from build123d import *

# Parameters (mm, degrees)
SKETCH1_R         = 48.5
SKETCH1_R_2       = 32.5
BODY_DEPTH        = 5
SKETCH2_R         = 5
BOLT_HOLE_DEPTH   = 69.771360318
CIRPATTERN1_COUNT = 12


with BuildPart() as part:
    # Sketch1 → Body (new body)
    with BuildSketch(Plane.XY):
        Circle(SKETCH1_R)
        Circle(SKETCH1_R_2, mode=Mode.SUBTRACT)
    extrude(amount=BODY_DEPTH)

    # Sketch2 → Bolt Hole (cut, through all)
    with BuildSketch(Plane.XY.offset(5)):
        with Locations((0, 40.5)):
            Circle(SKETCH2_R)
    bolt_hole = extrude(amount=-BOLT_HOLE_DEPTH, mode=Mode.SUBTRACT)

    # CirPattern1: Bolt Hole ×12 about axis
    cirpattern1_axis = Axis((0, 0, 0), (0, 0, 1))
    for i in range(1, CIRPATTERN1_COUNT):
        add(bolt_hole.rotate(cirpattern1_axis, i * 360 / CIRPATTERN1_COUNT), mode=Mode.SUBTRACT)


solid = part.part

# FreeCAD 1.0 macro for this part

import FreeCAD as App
import Part
import Sketcher

doc = App.newDocument("Part")
params = doc.addObject("Spreadsheet::Sheet", "Params")
for row, (alias, value) in enumerate([
    ("sketch1_diameter", "97 mm"),
    ("sketch1_diameter2", "65 mm"),
    ("pad1_length", "5 mm"),
    ("sketch2_diameter", "10 mm"),
], start=1):
    params.set(f"A{row}", alias)
    params.set(f"B{row}", "=" + value)
    params.setAlias(f"B{row}", alias)

body = doc.addObject("PartDesign::Body", "Body")

# Sketch on XY plane
sketch1 = body.newObject("Sketcher::SketchObject", "Sketch")
sketch1.AttachmentSupport = (doc.getObject("XY_Plane"), [""])
sketch1.MapMode = "FlatFace"
sketch1.addGeometry([
    Part.Circle(App.Vector(0, 0, 0), App.Vector(0, 0, 1), 48),
    Part.Circle(App.Vector(0, 0, 0), App.Vector(0, 0, 1), 32),
], False)
sketch1.addConstraint([
    Sketcher.Constraint("Coincident", 0, 3, -1, 1),
    Sketcher.Constraint("Coincident", 1, 3, -1, 1),
    Sketcher.Constraint("Diameter", 0, 97.0),
    Sketcher.Constraint("Diameter", 1, 65.0),
])
sketch1.setExpression("Constraints[2]", "Params.sketch1_diameter")
sketch1.setExpression("Constraints[3]", "Params.sketch1_diameter2")
pad1 = body.newObject("PartDesign::Pad", "Pad")
pad1.Profile = sketch1
pad1.setExpression("Length", "Params.pad1_length")

# Sketch on XY plane
sketch2 = body.newObject("Sketcher::SketchObject", "Sketch001")
sketch2.AttachmentSupport = (doc.getObject("XY_Plane"), [""])
sketch2.MapMode = "FlatFace"
sketch2.AttachmentOffset = App.Placement(App.Vector(0, 0, 5), App.Rotation())
sketch2.addGeometry(Part.Circle(App.Vector(0, 40, 0), App.Vector(0, 0, 1), 5), False)
sketch2.addConstraint([
    Sketcher.Constraint("PointOnObject", 0, 3, -2),
    Sketcher.Constraint("Diameter", 0, 10.0),
    Sketcher.Constraint("DistanceY", -1, 1, 0, 3, 40.5),
])
sketch2.setExpression("Constraints[1]", "Params.sketch2_diameter")
pocket1 = body.newObject("PartDesign::Pocket", "Pocket")
pocket1.Profile = sketch2
pocket1.Type = "ThroughAll"
doc.recompute()

polarpattern = body.newObject("PartDesign::PolarPattern", "PolarPattern")
polarpattern.Originals = [pocket1]
polarpattern.Axis = (doc.getObject("Z_Axis"), [""])
polarpattern.Angle = 360
polarpattern.Occurrences = 12
body.Tip = polarpattern

doc.recompute()
